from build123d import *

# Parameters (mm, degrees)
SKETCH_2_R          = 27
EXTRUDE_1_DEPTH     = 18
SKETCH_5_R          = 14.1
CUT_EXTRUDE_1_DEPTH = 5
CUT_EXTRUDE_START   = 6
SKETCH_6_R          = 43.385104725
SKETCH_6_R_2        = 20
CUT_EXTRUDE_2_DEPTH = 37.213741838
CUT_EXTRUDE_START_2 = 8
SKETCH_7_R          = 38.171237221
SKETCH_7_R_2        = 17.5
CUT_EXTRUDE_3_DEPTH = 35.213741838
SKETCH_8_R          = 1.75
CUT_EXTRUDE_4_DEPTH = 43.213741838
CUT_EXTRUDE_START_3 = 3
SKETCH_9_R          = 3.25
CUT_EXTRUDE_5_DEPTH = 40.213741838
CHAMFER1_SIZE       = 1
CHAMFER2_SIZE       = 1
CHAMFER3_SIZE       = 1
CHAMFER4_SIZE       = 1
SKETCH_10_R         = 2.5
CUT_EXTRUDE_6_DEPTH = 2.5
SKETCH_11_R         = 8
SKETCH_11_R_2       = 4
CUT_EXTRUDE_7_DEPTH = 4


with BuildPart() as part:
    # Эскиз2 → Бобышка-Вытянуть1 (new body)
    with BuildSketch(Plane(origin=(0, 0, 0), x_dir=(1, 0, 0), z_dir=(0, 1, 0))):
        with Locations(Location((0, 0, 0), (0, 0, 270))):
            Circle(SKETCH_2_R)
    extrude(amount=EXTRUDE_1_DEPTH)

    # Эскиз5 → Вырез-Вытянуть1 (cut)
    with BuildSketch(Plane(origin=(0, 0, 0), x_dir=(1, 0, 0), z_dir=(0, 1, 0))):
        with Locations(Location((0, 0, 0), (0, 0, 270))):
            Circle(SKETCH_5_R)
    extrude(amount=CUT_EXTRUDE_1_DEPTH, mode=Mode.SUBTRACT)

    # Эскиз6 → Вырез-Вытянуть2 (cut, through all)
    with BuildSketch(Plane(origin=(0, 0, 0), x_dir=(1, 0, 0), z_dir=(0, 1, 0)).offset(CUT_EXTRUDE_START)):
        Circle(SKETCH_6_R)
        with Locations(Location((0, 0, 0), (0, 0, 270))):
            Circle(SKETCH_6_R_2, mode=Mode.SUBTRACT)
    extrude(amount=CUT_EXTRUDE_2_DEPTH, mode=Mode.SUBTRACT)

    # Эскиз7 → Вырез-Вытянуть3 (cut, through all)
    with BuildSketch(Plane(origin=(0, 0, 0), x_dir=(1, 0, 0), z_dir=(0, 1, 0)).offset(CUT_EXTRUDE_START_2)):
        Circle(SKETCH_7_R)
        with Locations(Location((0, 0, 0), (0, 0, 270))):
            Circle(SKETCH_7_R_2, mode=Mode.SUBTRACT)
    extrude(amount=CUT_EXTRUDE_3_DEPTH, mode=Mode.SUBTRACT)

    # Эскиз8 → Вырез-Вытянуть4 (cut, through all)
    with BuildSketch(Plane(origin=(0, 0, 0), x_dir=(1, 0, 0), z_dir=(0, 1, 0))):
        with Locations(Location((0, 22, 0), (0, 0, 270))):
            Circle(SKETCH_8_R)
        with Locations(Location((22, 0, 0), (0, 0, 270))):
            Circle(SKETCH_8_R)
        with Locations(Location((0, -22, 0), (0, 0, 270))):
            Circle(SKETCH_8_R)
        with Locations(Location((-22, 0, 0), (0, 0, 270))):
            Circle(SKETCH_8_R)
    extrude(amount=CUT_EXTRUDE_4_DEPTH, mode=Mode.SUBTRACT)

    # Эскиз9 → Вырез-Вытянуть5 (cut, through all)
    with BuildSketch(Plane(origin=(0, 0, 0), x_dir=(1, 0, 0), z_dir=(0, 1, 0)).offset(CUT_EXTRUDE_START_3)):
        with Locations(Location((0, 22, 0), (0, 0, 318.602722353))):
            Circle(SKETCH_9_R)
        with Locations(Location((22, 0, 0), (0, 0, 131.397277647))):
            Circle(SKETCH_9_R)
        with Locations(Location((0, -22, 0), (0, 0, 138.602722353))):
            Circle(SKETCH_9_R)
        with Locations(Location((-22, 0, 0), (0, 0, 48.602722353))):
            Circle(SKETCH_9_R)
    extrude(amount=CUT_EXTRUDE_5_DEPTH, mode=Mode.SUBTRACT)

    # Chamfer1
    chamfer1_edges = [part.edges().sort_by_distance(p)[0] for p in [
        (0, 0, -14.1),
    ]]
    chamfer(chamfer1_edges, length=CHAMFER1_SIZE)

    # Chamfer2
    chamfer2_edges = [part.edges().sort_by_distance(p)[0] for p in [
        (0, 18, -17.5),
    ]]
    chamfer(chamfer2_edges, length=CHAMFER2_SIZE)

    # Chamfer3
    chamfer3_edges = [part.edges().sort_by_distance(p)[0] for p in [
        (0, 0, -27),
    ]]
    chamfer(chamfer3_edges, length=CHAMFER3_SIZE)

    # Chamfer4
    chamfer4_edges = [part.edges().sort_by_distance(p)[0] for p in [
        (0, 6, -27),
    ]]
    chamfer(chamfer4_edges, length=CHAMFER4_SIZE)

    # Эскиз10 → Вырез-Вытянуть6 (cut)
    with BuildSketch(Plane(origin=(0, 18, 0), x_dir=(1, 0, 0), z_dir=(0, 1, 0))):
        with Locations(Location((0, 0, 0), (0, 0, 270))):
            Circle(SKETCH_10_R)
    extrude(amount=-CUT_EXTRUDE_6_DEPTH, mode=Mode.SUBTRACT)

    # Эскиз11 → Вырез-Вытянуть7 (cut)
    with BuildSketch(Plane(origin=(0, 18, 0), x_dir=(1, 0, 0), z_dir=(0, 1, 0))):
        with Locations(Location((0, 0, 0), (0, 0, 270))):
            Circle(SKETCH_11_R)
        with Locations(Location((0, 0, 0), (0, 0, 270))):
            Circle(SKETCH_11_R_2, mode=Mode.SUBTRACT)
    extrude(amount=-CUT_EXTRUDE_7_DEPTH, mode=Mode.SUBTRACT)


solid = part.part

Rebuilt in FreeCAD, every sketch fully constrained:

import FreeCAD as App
import Part
import Sketcher
from FreeCAD import Vector
Q = App.Units.Quantity


def edges_at(feature, points):
    """Names of the edges that pass closest to the given points."""
    edges = feature.Shape.Edges
    near = lambda p: min(range(len(edges)), key=lambda i: edges[i].distToShape(Part.Vertex(*p))[0])
    return sorted({f"Edge{near(p) + 1}" for p in points})

doc = App.newDocument("Part")
params = doc.addObject("Spreadsheet::Sheet", "Params")
for row, (alias, value) in enumerate([
    ("sketch1_diameter", "54 mm"),
    ("pad1_length", "18 mm"),
    ("sketch2_diameter", "28.2 mm"),
    ("pocket1_length", "5 mm"),
    ("sketch3_diameter", "40 mm"),
    ("sketch4_diameter", "35 mm"),
    ("sketch5_diameter", "3.5 mm"),
    ("sketch6_diameter", "6.5 mm"),
    ("chamfer_size", "1 mm"),
    ("chamfer2_size", "1 mm"),
    ("chamfer3_size", "1 mm"),
    ("chamfer4_size", "1 mm"),
    ("sketch7_diameter", "5 mm"),
    ("pocket6_length", "2.5 mm"),
    ("sketch8_diameter", "16 mm"),
    ("sketch8_diameter2", "8 mm"),
    ("pocket7_length", "4 mm"),
], start=1):
    params.set(f"A{row}", alias)
    params.set(f"B{row}", "=" + value)
    params.setAlias(f"B{row}", alias)

body = doc.addObject("PartDesign::Body", "Body")

# Sketch on XZ plane
sketch1 = body.newObject("Sketcher::SketchObject", "Sketch")
sketch1.AttachmentSupport = (doc.getObject("XZ_Plane"), [""])
sketch1.MapMode = "FlatFace"
sketch1.addGeometry(Part.Circle(Vector(0, 0, 0), Vector(0, 0, 1), 27), False)
sketch1.addConstraint([
    Sketcher.Constraint("Coincident", 0, 3, -1, 1),
    Sketcher.Constraint("Diameter", 0, Q("54 mm")),
])
sketch1.setExpression("Constraints[1]", "Params.sketch1_diameter")
pad1 = body.newObject("PartDesign::Pad", "Pad")
pad1.Profile = sketch1
pad1.setExpression("Length", "Params.pad1_length")
pad1.Reversed = True

# Sketch on XZ plane
sketch2 = body.newObject("Sketcher::SketchObject", "Sketch001")
sketch2.AttachmentSupport = (doc.getObject("XZ_Plane"), [""])
sketch2.MapMode = "FlatFace"
sketch2.addGeometry(Part.Circle(Vector(0, 0, 0), Vector(0, 0, 1), 14), False)
sketch2.addConstraint([
    Sketcher.Constraint("Coincident", 0, 3, -1, 1),
    Sketcher.Constraint("Diameter", 0, Q("28.2 mm")),
])
sketch2.setExpression("Constraints[1]", "Params.sketch2_diameter")
pocket1 = body.newObject("PartDesign::Pocket", "Pocket")
pocket1.Profile = sketch2
pocket1.setExpression("Length", "Params.pocket1_length")

# Sketch on XZ plane
sketch3 = body.newObject("Sketcher::SketchObject", "Sketch002")
sketch3.AttachmentSupport = (doc.getObject("XZ_Plane"), [""])
sketch3.MapMode = "FlatFace"
sketch3.AttachmentOffset = App.Placement(Vector(0, 0, -6), App.Rotation())
sketch3.addGeometry([
    Part.Circle(Vector(0, 0, 0), Vector(0, 0, 1), 43),
    Part.Circle(Vector(0, 0, 0), Vector(0, 0, 1), 20),
], False)
sketch3.addConstraint([
    Sketcher.Constraint("Coincident", 0, 3, -1, 1),
    Sketcher.Constraint("Coincident", 1, 3, -1, 1),
    Sketcher.Constraint("Diameter", 1, Q("40 mm")),
    Sketcher.Constraint("Diameter", 0, Q("86.770209 mm")),
])
sketch3.setExpression("Constraints[2]", "Params.sketch3_diameter")
pocket2 = body.newObject("PartDesign::Pocket", "Pocket001")
pocket2.Profile = sketch3
pocket2.Type = "ThroughAll"

# Sketch on XZ plane
sketch4 = body.newObject("Sketcher::SketchObject", "Sketch003")
sketch4.AttachmentSupport = (doc.getObject("XZ_Plane"), [""])
sketch4.MapMode = "FlatFace"
sketch4.AttachmentOffset = App.Placement(Vector(0, 0, -8), App.Rotation())
sketch4.addGeometry([
    Part.Circle(Vector(0, 0, 0), Vector(0, 0, 1), 38),
    Part.Circle(Vector(0, 0, 0), Vector(0, 0, 1), 18),
], False)
sketch4.addConstraint([
    Sketcher.Constraint("Coincident", 0, 3, -1, 1),
    Sketcher.Constraint("Coincident", 1, 3, -1, 1),
    Sketcher.Constraint("Diameter", 1, Q("35 mm")),
    Sketcher.Constraint("Diameter", 0, Q("76.342474 mm")),
])
sketch4.setExpression("Constraints[2]", "Params.sketch4_diameter")
pocket3 = body.newObject("PartDesign::Pocket", "Pocket002")
pocket3.Profile = sketch4
pocket3.Type = "ThroughAll"

# Sketch on XZ plane
sketch5 = body.newObject("Sketcher::SketchObject", "Sketch004")
sketch5.AttachmentSupport = (doc.getObject("XZ_Plane"), [""])
sketch5.MapMode = "FlatFace"
sketch5.addGeometry([
    Part.Circle(Vector(0, -22, 0), Vector(0, 0, 1), 1.8),
    Part.Circle(Vector(22, 0, 0), Vector(0, 0, 1), 1.8),
    Part.Circle(Vector(0, 22, 0), Vector(0, 0, 1), 1.8),
    Part.Circle(Vector(-22, 0, 0), Vector(0, 0, 1), 1.8),
], False)
sketch5.addConstraint([
    Sketcher.Constraint("Equal", 0, 1),
    Sketcher.Constraint("Equal", 1, 2),
    Sketcher.Constraint("Equal", 2, 3),
    Sketcher.Constraint("Symmetric", 0, 3, 2, 3, -1, 1),
    Sketcher.Constraint("Symmetric", 1, 3, 3, 3, -1, 1),
    Sketcher.Constraint("PointOnObject", 0, 3, -2),
    Sketcher.Constraint("PointOnObject", 1, 3, -1),
    Sketcher.Constraint("Diameter", 0, Q("3.5 mm")),
    Sketcher.Constraint("DistanceY", 0, 3, -1, 1, Q("22 mm")),
    Sketcher.Constraint("DistanceX", -1, 1, 1, 3, Q("22 mm")),
])
sketch5.setExpression("Constraints[7]", "Params.sketch5_diameter")
pocket4 = body.newObject("PartDesign::Pocket", "Pocket003")
pocket4.Profile = sketch5
pocket4.Type = "ThroughAll"

# Sketch on XZ plane
sketch6 = body.newObject("Sketcher::SketchObject", "Sketch005")
sketch6.AttachmentSupport = (doc.getObject("XZ_Plane"), [""])
sketch6.MapMode = "FlatFace"
sketch6.AttachmentOffset = App.Placement(Vector(0, 0, -3), App.Rotation())
sketch6.addGeometry([
    Part.Circle(Vector(0, -22, 0), Vector(0, 0, 1), 3.2),
    Part.Circle(Vector(22, 0, 0), Vector(0, 0, 1), 3.2),
    Part.Circle(Vector(0, 22, 0), Vector(0, 0, 1), 3.2),
    Part.Circle(Vector(-22, 0, 0), Vector(0, 0, 1), 3.2),
], False)
sketch6.addConstraint([
    Sketcher.Constraint("Equal", 0, 1),
    Sketcher.Constraint("Equal", 1, 2),
    Sketcher.Constraint("Equal", 2, 3),
    Sketcher.Constraint("Symmetric", 0, 3, 2, 3, -1, 1),
    Sketcher.Constraint("Symmetric", 1, 3, 3, 3, -1, 1),
    Sketcher.Constraint("PointOnObject", 0, 3, -2),
    Sketcher.Constraint("PointOnObject", 1, 3, -1),
    Sketcher.Constraint("Diameter", 0, Q("6.5 mm")),
    Sketcher.Constraint("DistanceY", 0, 3, -1, 1, Q("22 mm")),
    Sketcher.Constraint("DistanceX", -1, 1, 1, 3, Q("22 mm")),
])
sketch6.setExpression("Constraints[7]", "Params.sketch6_diameter")
pocket5 = body.newObject("PartDesign::Pocket", "Pocket004")
pocket5.Profile = sketch6
pocket5.Type = "ThroughAll"
doc.recompute()

chamfer = body.newObject("PartDesign::Chamfer", "Chamfer")
chamfer.Base = (pocket5, edges_at(pocket5, [(0, 0, -14.1)]))
chamfer.setExpression("Size", "Params.chamfer_size")
doc.recompute()

chamfer2 = body.newObject("PartDesign::Chamfer", "Chamfer001")
chamfer2.Base = (chamfer, edges_at(chamfer, [(0, 18, -17.5)]))
chamfer2.setExpression("Size", "Params.chamfer2_size")
doc.recompute()

chamfer3 = body.newObject("PartDesign::Chamfer", "Chamfer002")
chamfer3.Base = (chamfer2, edges_at(chamfer2, [(0, 0, -27)]))
chamfer3.setExpression("Size", "Params.chamfer3_size")
doc.recompute()

chamfer4 = body.newObject("PartDesign::Chamfer", "Chamfer003")
chamfer4.Base = (chamfer3, edges_at(chamfer3, [(0, 6, -27)]))
chamfer4.setExpression("Size", "Params.chamfer4_size")

# Sketch on XZ plane
sketch7 = body.newObject("Sketcher::SketchObject", "Sketch006")
sketch7.AttachmentSupport = (doc.getObject("XZ_Plane"), [""])
sketch7.MapMode = "FlatFace"
sketch7.AttachmentOffset = App.Placement(Vector(0, 0, -18), App.Rotation())
sketch7.addGeometry(Part.Circle(Vector(0, 0, 0), Vector(0, 0, 1), 2.5), False)
sketch7.addConstraint([
    Sketcher.Constraint("Coincident", 0, 3, -1, 1),
    Sketcher.Constraint("Diameter", 0, Q("5 mm")),
])
sketch7.setExpression("Constraints[1]", "Params.sketch7_diameter")
pocket6 = body.newObject("PartDesign::Pocket", "Pocket005")
pocket6.Profile = sketch7
pocket6.setExpression("Length", "Params.pocket6_length")
pocket6.Reversed = True

# Sketch on XZ plane
sketch8 = body.newObject("Sketcher::SketchObject", "Sketch007")
sketch8.AttachmentSupport = (doc.getObject("XZ_Plane"), [""])
sketch8.MapMode = "FlatFace"
sketch8.AttachmentOffset = App.Placement(Vector(0, 0, -18), App.Rotation())
sketch8.addGeometry([
    Part.Circle(Vector(0, 0, 0), Vector(0, 0, 1), 8),
    Part.Circle(Vector(0, 0, 0), Vector(0, 0, 1), 4),
], False)
sketch8.addConstraint([
    Sketcher.Constraint("Coincident", 0, 3, -1, 1),
    Sketcher.Constraint("Coincident", 1, 3, -1, 1),
    Sketcher.Constraint("Diameter", 0, Q("16 mm")),
    Sketcher.Constraint("Diameter", 1, Q("8 mm")),
])
sketch8.setExpression("Constraints[2]", "Params.sketch8_diameter")
sketch8.setExpression("Constraints[3]", "Params.sketch8_diameter2")
pocket7 = body.newObject("PartDesign::Pocket", "Pocket006")
pocket7.Profile = sketch8
pocket7.setExpression("Length", "Params.pocket7_length")
pocket7.Reversed = True

doc.recompute()
